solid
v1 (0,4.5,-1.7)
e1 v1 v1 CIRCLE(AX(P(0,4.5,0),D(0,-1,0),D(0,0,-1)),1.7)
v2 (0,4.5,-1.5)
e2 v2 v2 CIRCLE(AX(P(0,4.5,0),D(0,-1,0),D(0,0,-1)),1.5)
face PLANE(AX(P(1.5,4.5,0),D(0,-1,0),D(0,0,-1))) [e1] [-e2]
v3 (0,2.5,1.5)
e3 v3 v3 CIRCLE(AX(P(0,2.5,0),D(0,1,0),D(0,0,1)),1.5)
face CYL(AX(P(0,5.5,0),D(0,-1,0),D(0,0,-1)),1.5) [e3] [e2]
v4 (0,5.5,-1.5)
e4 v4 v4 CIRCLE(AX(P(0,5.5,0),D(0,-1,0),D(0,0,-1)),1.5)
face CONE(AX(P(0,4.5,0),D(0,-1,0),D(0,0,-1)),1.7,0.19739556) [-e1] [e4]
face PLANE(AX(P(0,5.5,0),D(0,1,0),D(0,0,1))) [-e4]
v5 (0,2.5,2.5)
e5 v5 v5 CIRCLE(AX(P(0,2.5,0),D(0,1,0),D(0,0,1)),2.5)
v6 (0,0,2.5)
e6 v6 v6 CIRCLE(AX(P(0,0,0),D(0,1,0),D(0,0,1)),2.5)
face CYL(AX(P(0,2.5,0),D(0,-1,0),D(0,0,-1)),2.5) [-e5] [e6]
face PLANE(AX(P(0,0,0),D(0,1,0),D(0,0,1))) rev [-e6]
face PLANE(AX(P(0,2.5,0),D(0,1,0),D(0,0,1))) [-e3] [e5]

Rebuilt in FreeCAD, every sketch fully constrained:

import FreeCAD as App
import Part
import Sketcher

V = App.Vector
Q = App.Units.Quantity

doc = App.newDocument("Part")
params = doc.addObject("Spreadsheet::Sheet", "Params")
for row, (alias, value) in enumerate([
    ("sketch1_diameter", "5 mm"),
    ("pad1_length", "2.5 mm"),
    ("sketch2_diameter", "3 mm"),
    ("pad2_length", "3 mm"),
    ("sketch3_height", "1 mm"),
    ("sketch3_width", "0.2 mm"),
    ("revolution_angle", "360 deg"),
], start=1):
    params.set(f"A{row}", alias)
    params.set(f"B{row}", "=" + value)
    params.setAlias(f"B{row}", alias)

body = doc.addObject("PartDesign::Body", "Body")

# Sketch on XZ plane
sketch1 = body.newObject("Sketcher::SketchObject", "Sketch")
sketch1.AttachmentSupport = (doc.getObject("XZ_Plane"), [""])
sketch1.MapMode = "FlatFace"
sketch1.addGeometry(Part.Circle(V(0, 0, 0), V(0, 0, 1), 2.5), False)
sketch1.addConstraint(Sketcher.Constraint("Coincident", 0, 3, -1, 1))
sketch1.addConstraint(Sketcher.Constraint("Diameter", 0, Q("5 mm")))
sketch1.setExpression("Constraints[1]", "Params.sketch1_diameter")
pad1 = body.newObject("PartDesign::Pad", "Pad")
pad1.Profile = sketch1
pad1.setExpression("Length", "Params.pad1_length")
pad1.Reversed = True

# Sketch on XZ plane
sketch2 = body.newObject("Sketcher::SketchObject", "Sketch001")
sketch2.AttachmentSupport = (doc.getObject("XZ_Plane"), [""])
sketch2.MapMode = "FlatFace"
sketch2.AttachmentOffset = App.Placement(V(0, 0, -2.5), App.Rotation())
sketch2.addGeometry(Part.Circle(V(0, 0, 0), V(0, 0, 1), 1.5), False)
sketch2.addConstraint(Sketcher.Constraint("Coincident", 0, 3, -1, 1))
sketch2.addConstraint(Sketcher.Constraint("Diameter", 0, Q("3 mm")))
sketch2.setExpression("Constraints[1]", "Params.sketch2_diameter")
pad2 = body.newObject("PartDesign::Pad", "Pad001")
pad2.Profile = sketch2
pad2.setExpression("Length", "Params.pad2_length")
pad2.Reversed = True

# Sketch on XY plane
sketch3 = body.newObject("Sketcher::SketchObject", "Sketch002")
sketch3.AttachmentSupport = (doc.getObject("XY_Plane"), [""])
sketch3.MapMode = "FlatFace"
sketch3.addGeometry(Part.LineSegment(V(1.5, 5.5, 0), V(1.5, 4.5, 0)), False)
sketch3.addGeometry(Part.LineSegment(V(1.5, 4.5, 0), V(1.7, 4.5, 0)), False)
sketch3.addGeometry(Part.LineSegment(V(1.7, 4.5, 0), V(1.5, 5.5, 0)), False)
sketch3.addConstraint(Sketcher.Constraint("Coincident", 0, 2, 1, 1))
sketch3.addConstraint(Sketcher.Constraint("Coincident", 1, 2, 2, 1))
sketch3.addConstraint(Sketcher.Constraint("Coincident", 2, 2, 0, 1))
sketch3.addConstraint(Sketcher.Constraint("Vertical", 0))
sketch3.addConstraint(Sketcher.Constraint("Horizontal", 1))
sketch3.addConstraint(Sketcher.Constraint("DistanceY", 0, 2, 0, 1, Q("1 mm")))
sketch3.addConstraint(Sketcher.Constraint("DistanceX", 1, 1, 1, 2, Q("0.2 mm")))
sketch3.addConstraint(Sketcher.Constraint("DistanceX", -1, 1, 0, 2, Q("1.5 mm")))
sketch3.addConstraint(Sketcher.Constraint("DistanceY", -1, 1, 0, 2, Q("4.5 mm")))
sketch3.setExpression("Constraints[5]", "Params.sketch3_height")
sketch3.setExpression("Constraints[6]", "Params.sketch3_width")
revolution = body.newObject("PartDesign::Revolution", "Revolution")
revolution.Profile = sketch3
revolution.ReferenceAxis = (sketch3, ["V_Axis"])
revolution.setExpression("Angle", "Params.revolution_angle")

doc.recompute()
